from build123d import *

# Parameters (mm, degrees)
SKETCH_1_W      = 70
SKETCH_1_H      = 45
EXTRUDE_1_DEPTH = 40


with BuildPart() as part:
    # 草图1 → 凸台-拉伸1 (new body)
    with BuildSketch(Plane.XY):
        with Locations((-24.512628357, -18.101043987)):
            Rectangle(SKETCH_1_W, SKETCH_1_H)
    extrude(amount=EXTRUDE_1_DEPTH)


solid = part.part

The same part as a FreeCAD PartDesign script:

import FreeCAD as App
import Part
import Sketcher
Q = App.Units.Quantity

doc = App.newDocument("Part")
body = doc.addObject("PartDesign::Body", "Body")

sketch1 = body.newObject("Sketcher::SketchObject", "Sketch")
sketch1.AttachmentSupport = (doc.getObject("XY_Plane"), [""])
sketch1.MapMode = "FlatFace"
sketch1.addGeometry(Part.LineSegment(App.Vector(-59.512628, 4.398956, 0), App.Vector(-59.512628, -40.601044, 0)), False)
sketch1.addGeometry(Part.LineSegment(App.Vector(-59.512628, -40.601044, 0), App.Vector(10.487372, -40.601044, 0)), False)
sketch1.addGeometry(Part.LineSegment(App.Vector(10.487372, -40.601044, 0), App.Vector(10.487372, 4.398956, 0)), False)
sketch1.addGeometry(Part.LineSegment(App.Vector(10.487372, 4.398956, 0), App.Vector(-59.512628, 4.398956, 0)), False)
sketch1.addConstraint(Sketcher.Constraint("Coincident", 0, 2, 1, 1))
sketch1.addConstraint(Sketcher.Constraint("Coincident", 1, 2, 2, 1))
sketch1.addConstraint(Sketcher.Constraint("Coincident", 2, 2, 3, 1))
sketch1.addConstraint(Sketcher.Constraint("Coincident", 3, 2, 0, 1))
sketch1.addConstraint(Sketcher.Constraint("Vertical", 0))
sketch1.addConstraint(Sketcher.Constraint("Horizontal", 1))
sketch1.addConstraint(Sketcher.Constraint("Vertical", 2))
sketch1.addConstraint(Sketcher.Constraint("Horizontal", 3))
sketch1.addConstraint(Sketcher.Constraint("DistanceX", 1, 1, 1, 2, Q("70 mm")))
sketch1.addConstraint(Sketcher.Constraint("DistanceY", 0, 2, 0, 1, Q("45 mm")))
sketch1.addConstraint(Sketcher.Constraint("DistanceX", 0, 2, -1, 1, Q("59.512628 mm")))
sketch1.addConstraint(Sketcher.Constraint("DistanceY", 0, 2, -1, 1, Q("40.601044 mm")))
pad1 = body.newObject("PartDesign::Pad", "Pad")
pad1.Profile = sketch1
pad1.Length = 40

doc.recompute()
